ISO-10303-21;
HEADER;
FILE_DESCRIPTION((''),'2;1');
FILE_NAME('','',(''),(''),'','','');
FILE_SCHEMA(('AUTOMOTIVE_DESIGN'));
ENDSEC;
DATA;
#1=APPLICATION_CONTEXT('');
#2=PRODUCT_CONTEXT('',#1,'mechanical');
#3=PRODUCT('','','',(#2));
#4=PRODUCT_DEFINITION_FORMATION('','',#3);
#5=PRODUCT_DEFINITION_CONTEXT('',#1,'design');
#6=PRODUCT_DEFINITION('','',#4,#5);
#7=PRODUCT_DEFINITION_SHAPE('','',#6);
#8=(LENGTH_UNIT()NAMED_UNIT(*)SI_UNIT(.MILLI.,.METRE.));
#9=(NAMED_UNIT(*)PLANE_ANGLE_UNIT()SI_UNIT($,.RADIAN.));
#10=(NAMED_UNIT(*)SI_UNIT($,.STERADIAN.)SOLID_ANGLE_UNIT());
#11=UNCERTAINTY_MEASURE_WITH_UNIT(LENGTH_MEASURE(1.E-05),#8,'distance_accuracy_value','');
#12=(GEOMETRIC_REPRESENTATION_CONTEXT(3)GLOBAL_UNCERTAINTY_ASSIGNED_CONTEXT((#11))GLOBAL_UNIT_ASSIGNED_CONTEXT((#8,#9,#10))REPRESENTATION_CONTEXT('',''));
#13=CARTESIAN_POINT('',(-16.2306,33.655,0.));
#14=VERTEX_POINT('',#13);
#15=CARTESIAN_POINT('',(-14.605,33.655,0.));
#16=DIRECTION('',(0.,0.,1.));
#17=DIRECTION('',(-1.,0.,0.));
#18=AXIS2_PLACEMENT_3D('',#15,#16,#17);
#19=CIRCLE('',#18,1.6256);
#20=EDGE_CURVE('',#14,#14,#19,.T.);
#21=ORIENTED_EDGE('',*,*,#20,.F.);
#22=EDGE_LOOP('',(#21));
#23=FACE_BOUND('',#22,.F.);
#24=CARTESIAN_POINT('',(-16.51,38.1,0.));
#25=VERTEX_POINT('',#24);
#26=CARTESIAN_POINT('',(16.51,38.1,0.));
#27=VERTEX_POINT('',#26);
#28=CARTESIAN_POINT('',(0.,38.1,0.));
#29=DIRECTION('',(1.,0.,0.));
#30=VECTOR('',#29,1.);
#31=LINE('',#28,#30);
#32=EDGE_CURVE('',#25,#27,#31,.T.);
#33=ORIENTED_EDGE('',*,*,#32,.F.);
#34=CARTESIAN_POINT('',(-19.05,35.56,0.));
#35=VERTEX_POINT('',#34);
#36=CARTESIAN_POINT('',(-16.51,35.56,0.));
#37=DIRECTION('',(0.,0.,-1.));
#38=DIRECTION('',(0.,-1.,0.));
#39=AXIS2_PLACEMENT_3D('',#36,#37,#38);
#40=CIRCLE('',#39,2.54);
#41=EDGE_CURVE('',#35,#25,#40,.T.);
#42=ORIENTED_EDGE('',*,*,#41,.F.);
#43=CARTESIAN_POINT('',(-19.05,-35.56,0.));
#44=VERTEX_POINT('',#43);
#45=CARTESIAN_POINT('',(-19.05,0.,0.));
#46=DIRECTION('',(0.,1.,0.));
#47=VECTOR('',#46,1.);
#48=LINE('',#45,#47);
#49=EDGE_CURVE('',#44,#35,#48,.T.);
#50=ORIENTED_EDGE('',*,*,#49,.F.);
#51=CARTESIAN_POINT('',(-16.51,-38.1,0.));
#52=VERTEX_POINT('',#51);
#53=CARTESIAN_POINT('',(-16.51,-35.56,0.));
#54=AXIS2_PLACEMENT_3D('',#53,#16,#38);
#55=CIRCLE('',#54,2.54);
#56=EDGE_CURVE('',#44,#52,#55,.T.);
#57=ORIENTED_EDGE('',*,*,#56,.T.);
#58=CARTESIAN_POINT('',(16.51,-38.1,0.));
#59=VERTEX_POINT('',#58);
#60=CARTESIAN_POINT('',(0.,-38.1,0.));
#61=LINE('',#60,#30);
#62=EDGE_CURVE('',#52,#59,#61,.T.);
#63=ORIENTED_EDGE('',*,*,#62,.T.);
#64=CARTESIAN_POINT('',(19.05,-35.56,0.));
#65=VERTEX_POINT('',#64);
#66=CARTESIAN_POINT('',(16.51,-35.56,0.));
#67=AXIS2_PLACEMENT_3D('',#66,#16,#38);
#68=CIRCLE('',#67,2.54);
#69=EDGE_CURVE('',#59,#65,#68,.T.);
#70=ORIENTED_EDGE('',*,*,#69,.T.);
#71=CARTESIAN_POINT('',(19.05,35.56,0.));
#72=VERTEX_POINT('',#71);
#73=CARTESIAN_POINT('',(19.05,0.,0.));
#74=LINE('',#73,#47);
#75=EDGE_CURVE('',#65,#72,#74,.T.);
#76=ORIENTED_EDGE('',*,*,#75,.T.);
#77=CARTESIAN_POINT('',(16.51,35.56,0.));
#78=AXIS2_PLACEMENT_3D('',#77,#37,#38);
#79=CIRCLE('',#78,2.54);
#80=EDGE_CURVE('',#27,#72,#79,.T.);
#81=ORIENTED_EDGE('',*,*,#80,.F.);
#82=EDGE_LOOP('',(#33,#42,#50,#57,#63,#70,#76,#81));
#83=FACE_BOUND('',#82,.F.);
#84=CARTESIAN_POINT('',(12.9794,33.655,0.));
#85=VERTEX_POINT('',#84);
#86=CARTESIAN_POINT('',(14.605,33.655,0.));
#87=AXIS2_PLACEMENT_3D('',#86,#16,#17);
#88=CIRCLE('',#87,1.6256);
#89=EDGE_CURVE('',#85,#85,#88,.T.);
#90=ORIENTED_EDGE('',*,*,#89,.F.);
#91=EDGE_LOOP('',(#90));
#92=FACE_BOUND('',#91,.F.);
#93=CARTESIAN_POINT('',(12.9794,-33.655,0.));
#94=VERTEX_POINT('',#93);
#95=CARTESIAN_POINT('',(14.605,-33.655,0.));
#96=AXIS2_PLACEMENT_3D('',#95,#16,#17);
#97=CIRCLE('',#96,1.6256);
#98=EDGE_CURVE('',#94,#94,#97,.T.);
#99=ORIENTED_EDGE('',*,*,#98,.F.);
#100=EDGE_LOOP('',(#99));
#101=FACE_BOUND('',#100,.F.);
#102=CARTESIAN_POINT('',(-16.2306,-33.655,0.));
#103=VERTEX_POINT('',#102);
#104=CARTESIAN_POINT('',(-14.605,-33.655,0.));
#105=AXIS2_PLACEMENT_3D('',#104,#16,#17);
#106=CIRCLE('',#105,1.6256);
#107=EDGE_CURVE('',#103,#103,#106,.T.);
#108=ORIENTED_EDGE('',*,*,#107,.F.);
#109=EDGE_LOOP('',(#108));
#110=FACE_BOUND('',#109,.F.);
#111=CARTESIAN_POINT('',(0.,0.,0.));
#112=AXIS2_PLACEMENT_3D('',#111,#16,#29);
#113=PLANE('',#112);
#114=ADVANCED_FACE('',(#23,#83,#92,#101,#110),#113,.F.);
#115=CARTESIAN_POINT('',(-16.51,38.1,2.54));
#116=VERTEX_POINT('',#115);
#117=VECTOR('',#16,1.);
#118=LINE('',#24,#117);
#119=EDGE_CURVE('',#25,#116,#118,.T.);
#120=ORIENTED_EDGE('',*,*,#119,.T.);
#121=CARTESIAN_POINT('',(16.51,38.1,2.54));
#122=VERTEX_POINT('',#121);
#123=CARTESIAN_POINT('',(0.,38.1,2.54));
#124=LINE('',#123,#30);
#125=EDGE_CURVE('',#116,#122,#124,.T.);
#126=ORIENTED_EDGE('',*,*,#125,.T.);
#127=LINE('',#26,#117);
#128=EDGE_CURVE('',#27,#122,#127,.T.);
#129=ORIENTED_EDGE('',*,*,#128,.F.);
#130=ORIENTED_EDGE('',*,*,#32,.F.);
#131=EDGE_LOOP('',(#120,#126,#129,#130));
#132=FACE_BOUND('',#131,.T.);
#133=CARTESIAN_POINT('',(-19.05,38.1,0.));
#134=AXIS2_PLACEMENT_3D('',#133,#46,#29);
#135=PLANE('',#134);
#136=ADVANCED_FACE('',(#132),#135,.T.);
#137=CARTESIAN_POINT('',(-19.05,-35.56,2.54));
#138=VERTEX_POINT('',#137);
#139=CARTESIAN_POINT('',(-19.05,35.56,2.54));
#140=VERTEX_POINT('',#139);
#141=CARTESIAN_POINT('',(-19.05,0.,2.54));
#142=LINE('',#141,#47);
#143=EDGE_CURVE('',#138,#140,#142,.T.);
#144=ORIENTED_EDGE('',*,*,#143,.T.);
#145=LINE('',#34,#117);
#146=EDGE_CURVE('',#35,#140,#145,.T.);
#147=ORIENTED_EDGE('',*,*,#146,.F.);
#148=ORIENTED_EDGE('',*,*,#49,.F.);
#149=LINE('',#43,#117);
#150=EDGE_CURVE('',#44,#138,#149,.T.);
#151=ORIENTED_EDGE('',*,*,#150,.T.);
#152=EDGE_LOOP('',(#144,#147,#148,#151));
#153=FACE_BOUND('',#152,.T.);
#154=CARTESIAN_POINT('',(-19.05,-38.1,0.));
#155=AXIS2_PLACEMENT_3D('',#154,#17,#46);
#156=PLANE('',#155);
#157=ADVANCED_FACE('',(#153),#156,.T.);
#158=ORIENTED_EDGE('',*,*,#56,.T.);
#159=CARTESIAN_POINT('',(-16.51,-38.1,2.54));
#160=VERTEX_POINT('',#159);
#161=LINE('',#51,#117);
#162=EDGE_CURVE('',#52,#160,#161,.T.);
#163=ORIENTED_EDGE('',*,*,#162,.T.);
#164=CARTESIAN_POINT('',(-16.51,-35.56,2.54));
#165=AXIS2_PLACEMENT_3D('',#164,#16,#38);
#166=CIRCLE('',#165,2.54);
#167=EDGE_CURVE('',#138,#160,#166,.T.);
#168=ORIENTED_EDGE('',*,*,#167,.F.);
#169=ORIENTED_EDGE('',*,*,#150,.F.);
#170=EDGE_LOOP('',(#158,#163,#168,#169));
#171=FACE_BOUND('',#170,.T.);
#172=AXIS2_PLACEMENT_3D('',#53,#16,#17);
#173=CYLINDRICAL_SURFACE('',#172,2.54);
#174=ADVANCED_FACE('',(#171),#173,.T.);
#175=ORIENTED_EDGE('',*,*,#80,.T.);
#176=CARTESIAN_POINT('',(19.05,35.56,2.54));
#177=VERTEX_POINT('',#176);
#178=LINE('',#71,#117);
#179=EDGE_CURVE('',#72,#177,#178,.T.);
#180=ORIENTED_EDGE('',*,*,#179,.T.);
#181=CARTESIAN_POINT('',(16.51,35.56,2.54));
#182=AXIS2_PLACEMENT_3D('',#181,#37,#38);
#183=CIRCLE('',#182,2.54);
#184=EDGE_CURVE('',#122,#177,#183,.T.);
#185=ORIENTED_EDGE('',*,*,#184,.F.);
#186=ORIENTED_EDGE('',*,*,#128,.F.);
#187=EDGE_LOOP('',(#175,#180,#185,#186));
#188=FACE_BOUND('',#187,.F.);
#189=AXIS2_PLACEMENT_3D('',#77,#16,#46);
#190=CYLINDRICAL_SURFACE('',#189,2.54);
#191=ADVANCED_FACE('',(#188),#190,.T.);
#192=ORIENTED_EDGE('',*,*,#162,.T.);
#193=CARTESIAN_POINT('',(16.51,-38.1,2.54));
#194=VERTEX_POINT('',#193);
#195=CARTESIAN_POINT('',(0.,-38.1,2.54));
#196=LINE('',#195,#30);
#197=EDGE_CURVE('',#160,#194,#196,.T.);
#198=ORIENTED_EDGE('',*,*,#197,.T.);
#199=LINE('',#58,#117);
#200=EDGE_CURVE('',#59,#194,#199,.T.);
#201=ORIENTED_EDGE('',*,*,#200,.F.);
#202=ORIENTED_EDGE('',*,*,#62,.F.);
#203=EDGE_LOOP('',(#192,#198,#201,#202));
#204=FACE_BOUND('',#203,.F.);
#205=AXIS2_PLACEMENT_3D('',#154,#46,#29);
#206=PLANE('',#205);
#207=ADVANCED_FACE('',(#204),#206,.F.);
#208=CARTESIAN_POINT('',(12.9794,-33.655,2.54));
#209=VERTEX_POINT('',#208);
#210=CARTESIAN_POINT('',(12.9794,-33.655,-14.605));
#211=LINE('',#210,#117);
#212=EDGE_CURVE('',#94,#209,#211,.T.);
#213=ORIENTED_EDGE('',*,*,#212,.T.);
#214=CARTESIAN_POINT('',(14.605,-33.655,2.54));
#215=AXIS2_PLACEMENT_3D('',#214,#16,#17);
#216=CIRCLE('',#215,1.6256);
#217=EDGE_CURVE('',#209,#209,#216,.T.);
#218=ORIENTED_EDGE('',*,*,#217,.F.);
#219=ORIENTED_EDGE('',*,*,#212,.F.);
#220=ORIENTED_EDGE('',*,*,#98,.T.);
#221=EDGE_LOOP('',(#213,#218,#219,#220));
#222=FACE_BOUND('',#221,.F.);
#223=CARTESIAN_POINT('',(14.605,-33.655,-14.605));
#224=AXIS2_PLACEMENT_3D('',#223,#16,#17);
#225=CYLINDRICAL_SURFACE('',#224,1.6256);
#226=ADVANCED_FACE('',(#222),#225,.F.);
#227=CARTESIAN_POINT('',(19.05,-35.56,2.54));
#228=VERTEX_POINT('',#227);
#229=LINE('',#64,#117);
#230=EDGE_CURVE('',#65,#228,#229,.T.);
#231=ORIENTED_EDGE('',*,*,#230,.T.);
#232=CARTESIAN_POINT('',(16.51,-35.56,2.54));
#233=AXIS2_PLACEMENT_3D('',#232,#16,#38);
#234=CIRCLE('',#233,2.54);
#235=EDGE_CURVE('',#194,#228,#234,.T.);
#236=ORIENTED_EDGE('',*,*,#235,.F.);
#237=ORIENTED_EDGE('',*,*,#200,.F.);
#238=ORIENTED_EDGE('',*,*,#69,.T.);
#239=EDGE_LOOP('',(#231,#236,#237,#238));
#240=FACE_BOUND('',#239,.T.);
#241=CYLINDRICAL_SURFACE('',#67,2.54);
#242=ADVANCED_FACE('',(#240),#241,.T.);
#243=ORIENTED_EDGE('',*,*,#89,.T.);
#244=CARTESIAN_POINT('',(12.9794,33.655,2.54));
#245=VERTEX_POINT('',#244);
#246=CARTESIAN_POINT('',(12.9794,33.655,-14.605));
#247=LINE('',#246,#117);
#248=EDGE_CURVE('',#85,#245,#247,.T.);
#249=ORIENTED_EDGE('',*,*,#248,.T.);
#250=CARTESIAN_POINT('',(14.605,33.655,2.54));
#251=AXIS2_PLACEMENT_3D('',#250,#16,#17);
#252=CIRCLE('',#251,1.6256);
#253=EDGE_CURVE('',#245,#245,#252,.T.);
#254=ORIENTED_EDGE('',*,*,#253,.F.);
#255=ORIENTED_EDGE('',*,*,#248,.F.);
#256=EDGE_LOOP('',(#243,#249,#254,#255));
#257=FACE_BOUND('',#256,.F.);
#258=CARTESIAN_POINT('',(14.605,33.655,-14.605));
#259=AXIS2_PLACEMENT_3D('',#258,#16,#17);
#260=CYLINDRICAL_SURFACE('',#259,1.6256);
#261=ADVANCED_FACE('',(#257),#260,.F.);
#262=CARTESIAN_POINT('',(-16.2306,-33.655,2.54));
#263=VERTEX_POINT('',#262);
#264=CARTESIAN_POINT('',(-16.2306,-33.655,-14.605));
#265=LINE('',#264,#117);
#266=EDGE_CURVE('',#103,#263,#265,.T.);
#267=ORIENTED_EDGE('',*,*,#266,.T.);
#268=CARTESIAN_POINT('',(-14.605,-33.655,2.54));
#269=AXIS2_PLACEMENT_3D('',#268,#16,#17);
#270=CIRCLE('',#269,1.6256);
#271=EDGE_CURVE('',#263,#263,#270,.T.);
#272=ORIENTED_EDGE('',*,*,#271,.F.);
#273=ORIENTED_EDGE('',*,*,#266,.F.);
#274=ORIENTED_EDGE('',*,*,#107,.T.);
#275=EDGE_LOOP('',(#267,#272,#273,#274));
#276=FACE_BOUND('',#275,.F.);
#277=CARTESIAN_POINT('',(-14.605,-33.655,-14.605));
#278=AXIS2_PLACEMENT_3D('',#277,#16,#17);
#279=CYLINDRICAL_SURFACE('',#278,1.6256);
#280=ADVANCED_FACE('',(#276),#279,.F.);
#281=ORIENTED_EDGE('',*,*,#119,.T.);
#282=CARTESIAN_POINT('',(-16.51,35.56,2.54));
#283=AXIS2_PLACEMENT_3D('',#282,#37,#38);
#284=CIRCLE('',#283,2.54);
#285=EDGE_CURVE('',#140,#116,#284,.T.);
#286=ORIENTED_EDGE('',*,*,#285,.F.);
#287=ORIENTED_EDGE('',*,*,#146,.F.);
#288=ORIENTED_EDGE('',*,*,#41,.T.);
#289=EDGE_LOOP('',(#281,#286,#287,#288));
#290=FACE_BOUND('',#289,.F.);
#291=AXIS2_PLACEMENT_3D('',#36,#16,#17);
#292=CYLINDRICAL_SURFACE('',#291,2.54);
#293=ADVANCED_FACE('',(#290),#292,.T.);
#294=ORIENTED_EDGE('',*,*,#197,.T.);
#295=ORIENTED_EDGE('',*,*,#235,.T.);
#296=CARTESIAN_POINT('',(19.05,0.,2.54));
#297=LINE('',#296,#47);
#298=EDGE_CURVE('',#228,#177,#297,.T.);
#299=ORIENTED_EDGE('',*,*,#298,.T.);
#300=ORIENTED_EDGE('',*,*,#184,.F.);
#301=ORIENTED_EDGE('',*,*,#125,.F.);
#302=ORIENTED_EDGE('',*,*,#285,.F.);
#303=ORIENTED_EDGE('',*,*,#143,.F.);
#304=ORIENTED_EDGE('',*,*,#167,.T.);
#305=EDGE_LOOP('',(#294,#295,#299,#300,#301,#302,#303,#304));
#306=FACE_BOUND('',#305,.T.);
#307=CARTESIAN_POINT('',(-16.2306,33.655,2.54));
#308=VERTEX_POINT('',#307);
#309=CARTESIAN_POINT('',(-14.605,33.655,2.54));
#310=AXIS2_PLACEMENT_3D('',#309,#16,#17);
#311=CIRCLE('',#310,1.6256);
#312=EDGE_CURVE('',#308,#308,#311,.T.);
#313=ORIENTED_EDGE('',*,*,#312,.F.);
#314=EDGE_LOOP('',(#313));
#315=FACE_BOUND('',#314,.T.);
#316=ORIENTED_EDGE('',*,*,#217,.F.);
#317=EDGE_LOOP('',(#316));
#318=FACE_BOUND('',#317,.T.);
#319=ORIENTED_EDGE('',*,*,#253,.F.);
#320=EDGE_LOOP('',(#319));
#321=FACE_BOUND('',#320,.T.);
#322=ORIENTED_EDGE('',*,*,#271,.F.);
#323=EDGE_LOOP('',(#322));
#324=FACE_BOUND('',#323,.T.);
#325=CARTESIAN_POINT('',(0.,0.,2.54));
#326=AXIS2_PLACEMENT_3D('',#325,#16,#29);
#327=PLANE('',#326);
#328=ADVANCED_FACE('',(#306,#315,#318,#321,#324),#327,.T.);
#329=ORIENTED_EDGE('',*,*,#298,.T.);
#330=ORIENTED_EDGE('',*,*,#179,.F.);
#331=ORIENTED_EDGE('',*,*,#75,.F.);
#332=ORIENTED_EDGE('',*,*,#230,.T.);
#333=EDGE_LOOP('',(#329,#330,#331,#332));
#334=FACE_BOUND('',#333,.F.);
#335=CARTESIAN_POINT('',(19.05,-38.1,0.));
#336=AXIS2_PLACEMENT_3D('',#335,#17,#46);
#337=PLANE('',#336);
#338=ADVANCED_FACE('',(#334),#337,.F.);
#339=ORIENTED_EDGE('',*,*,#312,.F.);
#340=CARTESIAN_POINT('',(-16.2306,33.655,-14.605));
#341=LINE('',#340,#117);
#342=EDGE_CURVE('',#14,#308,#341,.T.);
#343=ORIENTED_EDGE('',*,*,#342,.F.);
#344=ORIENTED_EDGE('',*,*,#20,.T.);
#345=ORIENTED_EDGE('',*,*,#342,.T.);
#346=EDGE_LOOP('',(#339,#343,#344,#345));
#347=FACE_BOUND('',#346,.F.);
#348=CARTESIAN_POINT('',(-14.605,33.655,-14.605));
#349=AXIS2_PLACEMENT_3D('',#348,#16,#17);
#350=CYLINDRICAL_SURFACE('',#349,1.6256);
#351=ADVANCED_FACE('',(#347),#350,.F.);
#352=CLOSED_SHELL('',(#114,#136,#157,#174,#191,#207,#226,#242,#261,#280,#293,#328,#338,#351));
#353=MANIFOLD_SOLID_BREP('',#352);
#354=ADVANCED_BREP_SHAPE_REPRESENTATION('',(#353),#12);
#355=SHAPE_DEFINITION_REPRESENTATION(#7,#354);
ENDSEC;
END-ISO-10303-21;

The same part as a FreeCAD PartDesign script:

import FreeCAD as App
import Part
import Sketcher
from FreeCAD import Vector
Q = App.Units.Quantity


def edges_at(feature, points):
    """Names of the edges that pass closest to the given points."""
    edges = feature.Shape.Edges
    near = lambda p: min(range(len(edges)), key=lambda i: edges[i].distToShape(Part.Vertex(*p))[0])
    return sorted({f"Edge{near(p) + 1}" for p in points})

doc = App.newDocument("Part")
body = doc.addObject("PartDesign::Body", "Body")

# Sketch on XY plane
sketch1 = body.newObject("Sketcher::SketchObject", "Sketch")
sketch1.AttachmentSupport = (doc.getObject("XY_Plane"), [""])
sketch1.MapMode = "FlatFace"
sketch1.addGeometry([
    Part.LineSegment(Vector(-19, 38, 0), Vector(-19, -38, 0)),
    Part.LineSegment(Vector(-19, -38, 0), Vector(19, -38, 0)),
    Part.LineSegment(Vector(19, -38, 0), Vector(19, 38, 0)),
    Part.LineSegment(Vector(19, 38, 0), Vector(-19, 38, 0)),
], False)
sketch1.addConstraint([
    Sketcher.Constraint("Coincident", 0, 2, 1, 1),
    Sketcher.Constraint("Coincident", 1, 2, 2, 1),
    Sketcher.Constraint("Coincident", 2, 2, 3, 1),
    Sketcher.Constraint("Coincident", 3, 2, 0, 1),
    Sketcher.Constraint("Vertical", 0),
    Sketcher.Constraint("Horizontal", 1),
    Sketcher.Constraint("Vertical", 2),
    Sketcher.Constraint("Horizontal", 3),
    Sketcher.Constraint("Symmetric", 0, 2, 2, 2, -1, 1),
    Sketcher.Constraint("DistanceY", 0, 2, 0, 1, Q("3 in")),
    Sketcher.Constraint("DistanceX", 1, 1, 1, 2, Q("1.5 in")),
])
pad1 = body.newObject("PartDesign::Pad", "Pad")
pad1.Profile = sketch1
pad1.Length = Q("0.1 in")

# Sketch on XY plane
sketch2 = body.newObject("Sketcher::SketchObject", "Sketch001")
sketch2.AttachmentSupport = (doc.getObject("XY_Plane"), [""])
sketch2.MapMode = "FlatFace"
sketch2.addGeometry([
    Part.Circle(Vector(-14.6, 33.7, 0), Vector(0, 0, 1), 1.6),
    Part.Circle(Vector(14.6, 33.7, 0), Vector(0, 0, 1), 1.6),
    Part.Circle(Vector(14.6, -33.7, 0), Vector(0, 0, 1), 1.6),
    Part.Circle(Vector(-14.6, -33.7, 0), Vector(0, 0, 1), 1.6),
], False)
sketch2.addConstraint([
    Sketcher.Constraint("Equal", 0, 1),
    Sketcher.Constraint("Equal", 1, 2),
    Sketcher.Constraint("Equal", 2, 3),
    Sketcher.Constraint("Symmetric", 0, 3, 2, 3, -1, 1),
    Sketcher.Constraint("Symmetric", 1, 3, 3, 3, -1, 1),
    Sketcher.Constraint("Symmetric", 0, 3, 1, 3, -2),
    Sketcher.Constraint("Diameter", 0, Q("0.128 in")),
    Sketcher.Constraint("DistanceX", 0, 3, 1, 3, Q("1.15 in")),
    Sketcher.Constraint("DistanceY", 2, 3, 1, 3, Q("2.65 in")),
])
doc.recompute()
hole = body.newObject("PartDesign::Hole", "Hole")
hole.Profile = sketch2
hole.ThreadType = "None"
hole.Diameter = Q("0.128 in")
hole.DepthType = "Dimension"
hole.Depth = Q("0.575 in")
hole.DrillPoint = "Angled"
hole.DrillPointAngle = 118
hole.Reversed = True
doc.recompute()

fillet = body.newObject("PartDesign::Fillet", "Fillet")
fillet.Base = (hole, edges_at(hole, [
    (-19.05, 38.1, 1.27),
    (-19.05, -38.1, 1.27),
    (19.05, 38.1, 1.27),
    (19.05, -38.1, 1.27),
]))
fillet.Radius = Q("0.1 in")

doc.recompute()
